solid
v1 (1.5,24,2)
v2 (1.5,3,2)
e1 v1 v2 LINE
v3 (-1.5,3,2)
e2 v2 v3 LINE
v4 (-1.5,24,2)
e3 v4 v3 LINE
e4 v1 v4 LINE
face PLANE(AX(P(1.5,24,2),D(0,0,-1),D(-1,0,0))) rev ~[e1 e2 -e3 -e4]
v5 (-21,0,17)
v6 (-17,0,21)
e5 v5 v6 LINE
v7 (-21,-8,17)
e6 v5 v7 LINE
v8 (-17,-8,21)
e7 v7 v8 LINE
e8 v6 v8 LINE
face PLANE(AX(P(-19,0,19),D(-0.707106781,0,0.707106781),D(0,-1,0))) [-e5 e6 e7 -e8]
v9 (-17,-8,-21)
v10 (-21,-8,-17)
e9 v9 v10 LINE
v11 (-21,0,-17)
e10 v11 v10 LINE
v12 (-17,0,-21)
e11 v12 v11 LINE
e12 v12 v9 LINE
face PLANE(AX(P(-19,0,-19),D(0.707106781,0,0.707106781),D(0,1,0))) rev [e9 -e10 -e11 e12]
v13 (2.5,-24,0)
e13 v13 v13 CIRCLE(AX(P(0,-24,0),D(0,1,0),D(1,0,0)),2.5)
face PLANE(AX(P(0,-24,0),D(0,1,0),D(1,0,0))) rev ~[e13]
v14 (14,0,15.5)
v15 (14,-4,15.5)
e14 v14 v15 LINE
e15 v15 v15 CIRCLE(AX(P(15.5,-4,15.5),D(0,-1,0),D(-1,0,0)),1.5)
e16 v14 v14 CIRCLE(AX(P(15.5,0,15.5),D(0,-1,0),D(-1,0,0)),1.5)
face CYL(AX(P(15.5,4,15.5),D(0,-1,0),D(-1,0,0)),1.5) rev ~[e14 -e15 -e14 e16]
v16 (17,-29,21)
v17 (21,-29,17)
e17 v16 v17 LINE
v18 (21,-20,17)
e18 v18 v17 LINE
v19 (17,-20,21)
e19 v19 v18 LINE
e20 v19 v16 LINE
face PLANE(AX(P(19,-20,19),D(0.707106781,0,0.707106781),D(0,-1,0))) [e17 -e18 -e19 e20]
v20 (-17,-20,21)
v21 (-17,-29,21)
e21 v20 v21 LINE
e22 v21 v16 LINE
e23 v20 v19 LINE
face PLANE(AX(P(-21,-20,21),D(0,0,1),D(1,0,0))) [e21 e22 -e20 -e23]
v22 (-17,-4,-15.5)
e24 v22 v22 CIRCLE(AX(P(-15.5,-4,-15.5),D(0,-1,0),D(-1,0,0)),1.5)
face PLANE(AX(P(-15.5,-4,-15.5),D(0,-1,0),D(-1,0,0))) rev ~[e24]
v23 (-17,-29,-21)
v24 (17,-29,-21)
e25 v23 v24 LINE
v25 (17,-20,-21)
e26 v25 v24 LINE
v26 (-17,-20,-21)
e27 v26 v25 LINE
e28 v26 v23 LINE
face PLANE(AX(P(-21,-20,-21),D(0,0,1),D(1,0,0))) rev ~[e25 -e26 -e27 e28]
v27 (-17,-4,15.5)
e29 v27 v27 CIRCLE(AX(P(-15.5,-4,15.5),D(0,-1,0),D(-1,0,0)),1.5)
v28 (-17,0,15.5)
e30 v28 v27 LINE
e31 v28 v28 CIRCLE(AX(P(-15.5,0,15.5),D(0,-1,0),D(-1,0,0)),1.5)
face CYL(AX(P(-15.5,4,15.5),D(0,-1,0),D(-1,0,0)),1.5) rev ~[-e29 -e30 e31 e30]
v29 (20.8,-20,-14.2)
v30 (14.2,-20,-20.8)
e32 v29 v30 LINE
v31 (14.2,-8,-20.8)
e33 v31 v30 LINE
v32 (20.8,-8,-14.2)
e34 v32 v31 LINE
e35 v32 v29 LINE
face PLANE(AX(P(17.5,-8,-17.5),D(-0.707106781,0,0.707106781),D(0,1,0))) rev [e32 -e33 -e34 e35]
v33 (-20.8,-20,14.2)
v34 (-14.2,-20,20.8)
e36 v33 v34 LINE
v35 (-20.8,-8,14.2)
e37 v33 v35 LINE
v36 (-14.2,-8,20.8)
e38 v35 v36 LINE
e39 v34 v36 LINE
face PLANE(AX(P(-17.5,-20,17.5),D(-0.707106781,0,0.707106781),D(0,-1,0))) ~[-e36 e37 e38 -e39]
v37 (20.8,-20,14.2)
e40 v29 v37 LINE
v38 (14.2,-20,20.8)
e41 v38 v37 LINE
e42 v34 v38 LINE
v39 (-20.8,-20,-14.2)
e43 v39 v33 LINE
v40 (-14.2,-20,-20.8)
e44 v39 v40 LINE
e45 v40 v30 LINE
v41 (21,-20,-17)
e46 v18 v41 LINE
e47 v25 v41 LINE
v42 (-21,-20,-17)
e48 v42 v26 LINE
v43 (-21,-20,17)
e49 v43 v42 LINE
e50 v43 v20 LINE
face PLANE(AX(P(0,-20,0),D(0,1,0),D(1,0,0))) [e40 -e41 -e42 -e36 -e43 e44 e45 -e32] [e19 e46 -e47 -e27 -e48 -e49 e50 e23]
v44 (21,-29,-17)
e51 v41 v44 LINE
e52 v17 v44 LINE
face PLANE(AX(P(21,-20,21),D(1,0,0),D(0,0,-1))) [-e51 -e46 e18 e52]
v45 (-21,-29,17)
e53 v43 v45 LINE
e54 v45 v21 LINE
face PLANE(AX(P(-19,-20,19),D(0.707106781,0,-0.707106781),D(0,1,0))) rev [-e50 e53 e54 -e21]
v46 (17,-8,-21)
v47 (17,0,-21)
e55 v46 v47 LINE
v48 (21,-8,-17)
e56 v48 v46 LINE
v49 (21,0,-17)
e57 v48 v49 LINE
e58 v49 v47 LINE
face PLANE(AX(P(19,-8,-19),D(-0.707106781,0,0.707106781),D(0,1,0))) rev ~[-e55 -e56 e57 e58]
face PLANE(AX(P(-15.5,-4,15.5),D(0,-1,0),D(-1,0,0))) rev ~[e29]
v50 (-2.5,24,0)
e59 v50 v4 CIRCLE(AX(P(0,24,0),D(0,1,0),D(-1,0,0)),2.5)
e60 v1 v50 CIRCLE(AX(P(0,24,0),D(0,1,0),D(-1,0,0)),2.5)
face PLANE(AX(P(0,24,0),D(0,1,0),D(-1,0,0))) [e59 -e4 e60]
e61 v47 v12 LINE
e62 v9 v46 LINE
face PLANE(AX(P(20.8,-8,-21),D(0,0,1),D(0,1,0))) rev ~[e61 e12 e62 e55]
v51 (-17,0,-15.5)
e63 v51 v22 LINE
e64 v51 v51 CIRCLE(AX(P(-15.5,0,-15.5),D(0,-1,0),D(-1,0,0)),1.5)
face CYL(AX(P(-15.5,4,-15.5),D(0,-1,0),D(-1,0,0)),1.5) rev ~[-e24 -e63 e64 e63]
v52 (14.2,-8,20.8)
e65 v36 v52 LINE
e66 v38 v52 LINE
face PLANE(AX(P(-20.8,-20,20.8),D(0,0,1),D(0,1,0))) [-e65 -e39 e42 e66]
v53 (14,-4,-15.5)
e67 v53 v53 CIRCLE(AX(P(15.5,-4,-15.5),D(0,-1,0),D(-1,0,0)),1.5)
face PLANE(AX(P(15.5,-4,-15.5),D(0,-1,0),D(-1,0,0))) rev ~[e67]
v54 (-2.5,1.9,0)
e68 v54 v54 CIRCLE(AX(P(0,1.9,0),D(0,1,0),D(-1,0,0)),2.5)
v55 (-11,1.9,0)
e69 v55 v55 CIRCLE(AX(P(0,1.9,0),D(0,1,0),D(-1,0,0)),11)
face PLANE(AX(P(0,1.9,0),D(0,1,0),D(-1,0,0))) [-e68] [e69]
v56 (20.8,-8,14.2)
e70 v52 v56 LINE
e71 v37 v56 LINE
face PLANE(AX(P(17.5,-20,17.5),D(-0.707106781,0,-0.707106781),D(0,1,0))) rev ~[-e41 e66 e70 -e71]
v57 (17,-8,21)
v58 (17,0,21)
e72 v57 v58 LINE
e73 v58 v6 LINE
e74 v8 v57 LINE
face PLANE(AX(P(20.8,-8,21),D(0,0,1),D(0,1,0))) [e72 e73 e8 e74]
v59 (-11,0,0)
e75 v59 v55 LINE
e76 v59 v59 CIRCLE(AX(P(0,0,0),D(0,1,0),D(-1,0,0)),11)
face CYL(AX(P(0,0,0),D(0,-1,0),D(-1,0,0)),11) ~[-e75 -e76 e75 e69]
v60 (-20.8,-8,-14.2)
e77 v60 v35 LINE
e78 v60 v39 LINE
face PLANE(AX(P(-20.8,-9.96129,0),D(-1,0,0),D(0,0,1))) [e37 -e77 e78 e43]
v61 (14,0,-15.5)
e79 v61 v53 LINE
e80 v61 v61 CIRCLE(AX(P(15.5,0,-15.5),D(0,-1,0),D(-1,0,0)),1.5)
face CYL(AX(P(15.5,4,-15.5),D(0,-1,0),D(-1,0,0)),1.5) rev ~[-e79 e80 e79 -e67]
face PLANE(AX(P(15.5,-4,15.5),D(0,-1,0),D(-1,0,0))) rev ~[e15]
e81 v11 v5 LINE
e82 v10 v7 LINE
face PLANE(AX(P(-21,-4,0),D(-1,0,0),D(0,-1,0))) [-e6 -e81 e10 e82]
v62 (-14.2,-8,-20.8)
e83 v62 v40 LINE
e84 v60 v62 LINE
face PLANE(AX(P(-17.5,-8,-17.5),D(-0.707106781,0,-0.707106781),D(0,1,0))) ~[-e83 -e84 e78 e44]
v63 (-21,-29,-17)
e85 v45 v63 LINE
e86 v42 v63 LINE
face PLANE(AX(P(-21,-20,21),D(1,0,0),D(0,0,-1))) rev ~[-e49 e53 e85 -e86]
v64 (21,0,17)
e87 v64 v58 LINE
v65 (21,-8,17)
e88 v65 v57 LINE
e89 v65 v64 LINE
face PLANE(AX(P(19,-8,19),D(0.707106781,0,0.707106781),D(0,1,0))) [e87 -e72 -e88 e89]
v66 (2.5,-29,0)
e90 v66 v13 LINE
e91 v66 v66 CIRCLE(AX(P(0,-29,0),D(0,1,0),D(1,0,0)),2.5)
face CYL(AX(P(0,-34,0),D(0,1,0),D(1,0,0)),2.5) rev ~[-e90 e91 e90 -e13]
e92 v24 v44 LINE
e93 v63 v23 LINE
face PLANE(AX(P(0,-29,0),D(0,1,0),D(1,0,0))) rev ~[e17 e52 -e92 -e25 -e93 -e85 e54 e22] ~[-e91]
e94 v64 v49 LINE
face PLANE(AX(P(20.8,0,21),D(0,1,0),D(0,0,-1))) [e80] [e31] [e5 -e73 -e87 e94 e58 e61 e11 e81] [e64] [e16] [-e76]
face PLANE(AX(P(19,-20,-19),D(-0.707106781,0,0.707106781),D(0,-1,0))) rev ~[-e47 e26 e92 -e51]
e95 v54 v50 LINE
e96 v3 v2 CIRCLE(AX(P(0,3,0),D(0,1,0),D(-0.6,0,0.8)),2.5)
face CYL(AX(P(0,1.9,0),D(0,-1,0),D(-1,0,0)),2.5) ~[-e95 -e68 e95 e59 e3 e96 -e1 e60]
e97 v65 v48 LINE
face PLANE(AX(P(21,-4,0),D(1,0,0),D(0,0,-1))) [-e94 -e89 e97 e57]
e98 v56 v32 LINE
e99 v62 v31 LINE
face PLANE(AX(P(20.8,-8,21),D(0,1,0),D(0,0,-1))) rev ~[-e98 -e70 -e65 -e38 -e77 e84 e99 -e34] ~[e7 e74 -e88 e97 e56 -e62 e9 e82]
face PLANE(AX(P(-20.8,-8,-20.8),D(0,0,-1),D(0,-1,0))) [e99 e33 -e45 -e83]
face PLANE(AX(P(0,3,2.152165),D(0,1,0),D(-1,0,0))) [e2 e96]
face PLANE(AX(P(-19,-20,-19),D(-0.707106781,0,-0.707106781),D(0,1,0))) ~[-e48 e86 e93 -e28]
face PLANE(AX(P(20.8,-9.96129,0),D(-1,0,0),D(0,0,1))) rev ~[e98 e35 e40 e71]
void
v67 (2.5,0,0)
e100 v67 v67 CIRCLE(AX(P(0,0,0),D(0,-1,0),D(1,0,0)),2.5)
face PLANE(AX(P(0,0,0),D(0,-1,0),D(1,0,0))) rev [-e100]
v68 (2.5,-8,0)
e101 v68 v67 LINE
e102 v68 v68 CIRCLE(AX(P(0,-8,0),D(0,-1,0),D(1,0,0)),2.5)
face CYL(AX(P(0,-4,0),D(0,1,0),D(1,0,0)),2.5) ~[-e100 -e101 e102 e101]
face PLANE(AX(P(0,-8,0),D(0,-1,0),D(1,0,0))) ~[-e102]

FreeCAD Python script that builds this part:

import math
import FreeCAD as App
import Part
import Sketcher


def edges_at(feature, points):
    """Names of the edges that pass closest to the given points."""
    edges = feature.Shape.Edges
    near = lambda p: min(range(len(edges)), key=lambda i: edges[i].distToShape(Part.Vertex(*p))[0])
    return sorted({f"Edge{near(p) + 1}" for p in points})


def add_polygon(sketch, points):
    """Adds a closed chain of lines whose ends are joined by coincident constraints."""
    first, n = sketch.GeometryCount, len(points)
    for a, b in zip(points, points[1:] + points[:1]):
        sketch.addGeometry(Part.LineSegment(App.Vector(*a, 0), App.Vector(*b, 0)), False)
    for i in range(n):
        sketch.addConstraint(Sketcher.Constraint("Coincident", first + i, 2, first + (i + 1) % n, 1))

doc = App.newDocument("Part")
body = doc.addObject("PartDesign::Body", "Body")

# Sketch on YZ plane
sketch1 = doc.addObject("Sketcher::SketchObject", "Sketch")
body.addObject(sketch1)
sketch1.AttachmentSupport = (doc.YZ_Plane, [""])
sketch1.MapMode = "FlatFace"
sketch1.AttachmentOffset = App.Placement(App.Vector(0, 0, -21), App.Rotation())
add_polygon(sketch1, [(0, 21), (0, -21), (-8, -21), (-8, 21)])  # lines 0-3
sketch1.addConstraint([
    Sketcher.Constraint("Vertical", 0),
    Sketcher.Constraint("Horizontal", 1),
    Sketcher.Constraint("Vertical", 2),
    Sketcher.Constraint("Horizontal", 3),
    Sketcher.Constraint("Symmetric", 0, 2, 3, 2, -1, 1),
    Sketcher.Constraint("DistanceX", 1, 2, 1, 1, 8.0),
    Sketcher.Constraint("DistanceY", 0, 2, 0, 1, 42.0),
])
pad1 = doc.addObject("PartDesign::Pad", "Pad")
body.addObject(pad1)
pad1.Profile = sketch1
pad1.Length = 0.2

# Sketch on YZ plane
sketch2 = doc.addObject("Sketcher::SketchObject", "Sketch001")
body.addObject(sketch2)
sketch2.AttachmentSupport = (doc.YZ_Plane, [""])
sketch2.MapMode = "FlatFace"
sketch2.AttachmentOffset = App.Placement(App.Vector(0, 0, -20.8), App.Rotation())
add_polygon(sketch2, [(-20, -20.8), (-8, -20.8), (-8, -21), (0, -21), (0, 21), (-8, 21), (-8, 20.8), (-20, 20.8)])  # lines 0-7
sketch2.addConstraint([
    Sketcher.Constraint("Horizontal", 0),
    Sketcher.Constraint("Vertical", 1),
    Sketcher.Constraint("Horizontal", 2),
    Sketcher.Constraint("Vertical", 3),
    Sketcher.Constraint("Horizontal", 4),
    Sketcher.Constraint("Vertical", 5),
    Sketcher.Constraint("Horizontal", 6),
    Sketcher.Constraint("Vertical", 7),
    Sketcher.Constraint("Symmetric", 2, 2, 3, 2, -1, 1),
    Sketcher.Constraint("Symmetric", 0, 2, 5, 2, -1),
    Sketcher.Constraint("DistanceX", 0, 1, 0, 2, 12.0),
    Sketcher.Constraint("DistanceX", 2, 1, 2, 2, 8.0),
    Sketcher.Constraint("DistanceY", 3, 1, 3, 2, 42.0),
    Sketcher.Constraint("DistanceY", 1, 2, 1, 1, 0.2),
])
pad2 = doc.addObject("PartDesign::Pad", "Pad001")
body.addObject(pad2)
pad2.Profile = sketch2
pad2.Length = 41.6

# Sketch on YZ plane
sketch3 = doc.addObject("Sketcher::SketchObject", "Sketch002")
body.addObject(sketch3)
sketch3.AttachmentSupport = (doc.YZ_Plane, [""])
sketch3.MapMode = "FlatFace"
sketch3.AttachmentOffset = App.Placement(App.Vector(0, 0, 20.8), App.Rotation())
add_polygon(sketch3, [(0, 21), (-8, 21), (-8, -21), (0, -21)])  # lines 0-3
sketch3.addConstraint([
    Sketcher.Constraint("Horizontal", 0),
    Sketcher.Constraint("Vertical", 1),
    Sketcher.Constraint("Horizontal", 2),
    Sketcher.Constraint("Vertical", 3),
    Sketcher.Constraint("Symmetric", 2, 2, 3, 2, -1, 1),
    Sketcher.Constraint("DistanceX", 0, 2, 0, 1, 8.0),
    Sketcher.Constraint("DistanceY", 1, 2, 1, 1, 42.0),
])
pad3 = doc.addObject("PartDesign::Pad", "Pad002")
body.addObject(pad3)
pad3.Profile = sketch3
pad3.Length = 0.2

# Sketch on XZ plane
sketch4 = doc.addObject("Sketcher::SketchObject", "Sketch003")
body.addObject(sketch4)
sketch4.AttachmentSupport = (doc.XZ_Plane, [""])
sketch4.MapMode = "FlatFace"
sketch4.AttachmentOffset = App.Placement(App.Vector(0, 0, 20), App.Rotation())
add_polygon(sketch4, [(-21, -21), (-21, 21), (21, 21), (21, -21)])  # lines 0-3
sketch4.addConstraint([
    Sketcher.Constraint("Vertical", 0),
    Sketcher.Constraint("Horizontal", 1),
    Sketcher.Constraint("Vertical", 2),
    Sketcher.Constraint("Horizontal", 3),
    Sketcher.Constraint("Symmetric", 0, 2, 2, 2, -1, 1),
    Sketcher.Constraint("Equal", 3, 0),
    Sketcher.Constraint("DistanceX", 1, 1, 1, 2, 42.0),
])
pad4 = doc.addObject("PartDesign::Pad", "Pad003")
body.addObject(pad4)
pad4.Profile = sketch4
pad4.Length = 9

# Sketch on XZ plane
sketch5 = doc.addObject("Sketcher::SketchObject", "Sketch004")
body.addObject(sketch5)
sketch5.AttachmentSupport = (doc.XZ_Plane, [""])
sketch5.MapMode = "FlatFace"
sketch5.addGeometry(Part.Circle(App.Vector(0, 0, 0), App.Vector(0, 0, 1), 11), False)
sketch5.addConstraint([
    Sketcher.Constraint("Coincident", 0, 3, -1, 1),
    Sketcher.Constraint("Diameter", 0, 22.0),
])
pad5 = doc.addObject("PartDesign::Pad", "Pad004")
body.addObject(pad5)
pad5.Profile = sketch5
pad5.Length = 1.9
pad5.Reversed = True

# Sketch on XZ plane
sketch6 = doc.addObject("Sketcher::SketchObject", "Sketch005")
body.addObject(sketch6)
sketch6.AttachmentSupport = (doc.XZ_Plane, [""])
sketch6.MapMode = "FlatFace"
sketch6.AttachmentOffset = App.Placement(App.Vector(0, 0, -1.9), App.Rotation())
sketch6.addGeometry(Part.Circle(App.Vector(0, 0, 0), App.Vector(0, 0, 1), 2.5), False)
sketch6.addConstraint([
    Sketcher.Constraint("Coincident", 0, 3, -1, 1),
    Sketcher.Constraint("Diameter", 0, 5.0),
])
pad6 = doc.addObject("PartDesign::Pad", "Pad005")
body.addObject(pad6)
pad6.Profile = sketch6
pad6.Length = 22.1
pad6.Reversed = True

# Sketch on XZ plane
sketch7 = doc.addObject("Sketcher::SketchObject", "Sketch006")
body.addObject(sketch7)
sketch7.AttachmentSupport = (doc.XZ_Plane, [""])
sketch7.MapMode = "FlatFace"
sketch7.AttachmentOffset = App.Placement(App.Vector(0, 0, -24), App.Rotation())
sketch7.addGeometry([
    Part.LineSegment(App.Vector(1.5, 2, 0), App.Vector(-1.5, 2, 0)),
    Part.ArcOfCircle(Part.Circle(App.Vector(0, 0, 0), App.Vector(0, 0, 1), 2.5), math.radians(53), math.radians(127)),
], False)
sketch7.addConstraint([
    Sketcher.Constraint("Coincident", 0, 1, 1, 1),
    Sketcher.Constraint("Coincident", 1, 2, 0, 2),
    Sketcher.Constraint("Horizontal", 0),
    Sketcher.Constraint("Coincident", 1, 3, -1, 1),
    Sketcher.Constraint("Radius", 1, 2.5),
    Sketcher.Constraint("DistanceX", 0, 2, 0, 1, 3.0),
])
pocket1 = doc.addObject("PartDesign::Pocket", "Pocket")
body.addObject(pocket1)
pocket1.Profile = sketch7
pocket1.Length = 21
pocket1.Reversed = True

# Sketch on XY plane
sketch8 = doc.addObject("Sketcher::SketchObject", "Sketch007")
body.addObject(sketch8)
sketch8.AttachmentSupport = (doc.XY_Plane, [""])
sketch8.MapMode = "FlatFace"
add_polygon(sketch8, [(0, 0), (0, -8), (2.5, -8), (2.5, 0)])  # lines 0-3
sketch8.addConstraint([
    Sketcher.Constraint("Vertical", 0),
    Sketcher.Constraint("Horizontal", 1),
    Sketcher.Constraint("Vertical", 2),
    Sketcher.Constraint("Horizontal", 3),
    Sketcher.Constraint("Coincident", 3, 2, -1, 1),
    Sketcher.Constraint("DistanceY", 0, 2, 0, 1, 8.0),
    Sketcher.Constraint("DistanceX", 1, 1, 1, 2, 2.5),
])
groove = doc.addObject("PartDesign::Groove", "Groove")
body.addObject(groove)
groove.Profile = sketch8
groove.ReferenceAxis = (sketch8, ["V_Axis"])
groove.Angle = 360

# Sketch on XZ plane
sketch9 = doc.addObject("Sketcher::SketchObject", "Sketch008")
body.addObject(sketch9)
sketch9.AttachmentSupport = (doc.XZ_Plane, [""])
sketch9.MapMode = "FlatFace"
sketch9.AttachmentOffset = App.Placement(App.Vector(0, 0, 29), App.Rotation())
sketch9.addGeometry(Part.Circle(App.Vector(0, 0, 0), App.Vector(0, 0, 1), 2.5), False)
sketch9.addConstraint([
    Sketcher.Constraint("Coincident", 0, 3, -1, 1),
    Sketcher.Constraint("Diameter", 0, 5.0),
])
doc.recompute()
hole = doc.addObject("PartDesign::Hole", "Hole")
body.addObject(hole)
hole.Profile = sketch9
hole.ThreadType = "None"
hole.Diameter = 5
hole.DepthType = "Dimension"
hole.Depth = 5
hole.DrillPoint = "Flat"

# Sketch on XZ plane
sketch10 = doc.addObject("Sketcher::SketchObject", "Sketch009")
body.addObject(sketch10)
sketch10.AttachmentSupport = (doc.XZ_Plane, [""])
sketch10.MapMode = "FlatFace"
sketch10.addGeometry([
    Part.Circle(App.Vector(-15.5, -15.5, 0), App.Vector(0, 0, 1), 1.5),
    Part.Circle(App.Vector(15.5, 15.5, 0), App.Vector(0, 0, 1), 1.5),
    Part.Circle(App.Vector(15.5, -15.5, 0), App.Vector(0, 0, 1), 1.5),
    Part.Circle(App.Vector(-15.5, 15.5, 0), App.Vector(0, 0, 1), 1.5),
], False)
sketch10.addConstraint([
    Sketcher.Constraint("Equal", 0, 1),
    Sketcher.Constraint("Equal", 1, 2),
    Sketcher.Constraint("Equal", 2, 3),
    Sketcher.Constraint("Symmetric", 0, 3, 1, 3, -1, 1),
    Sketcher.Constraint("Symmetric", 2, 3, 3, 3, -1, 1),
    Sketcher.Constraint("Symmetric", 0, 3, 2, 3, -2),
    Sketcher.Constraint("Diameter", 0, 3.0),
    Sketcher.Constraint("DistanceX", 0, 3, 1, 3, 31.0),
    Sketcher.Constraint("DistanceY", 0, 3, 1, 3, 31.0),
])
doc.recompute()
hole2 = doc.addObject("PartDesign::Hole", "Hole001")
body.addObject(hole2)
hole2.Profile = sketch10
hole2.ThreadType = "None"
hole2.Diameter = 3
hole2.DepthType = "Dimension"
hole2.Depth = 4
hole2.DrillPoint = "Flat"
hole2.Reversed = True
doc.recompute()

chamfer = doc.addObject("PartDesign::Chamfer", "Chamfer")
body.addObject(chamfer)
chamfer.Base = (hole2, edges_at(hole2, [
    (-20.8, -14, 20.8),
    (-20.8, -14, -20.8),
    (20.8, -14, 20.8),
    (20.8, -14, -20.8),
]))
chamfer.Size = 6.6
doc.recompute()

chamfer2 = doc.addObject("PartDesign::Chamfer", "Chamfer001")
body.addObject(chamfer2)
chamfer2.Base = (chamfer, edges_at(chamfer, [
    (21, -4, -21),
    (21, -4, 21),
    (-21, -24.5, 21),
    (-21, -24.5, -21),
    (21, -24.5, -21),
    (21, -24.5, 21),
    (-21, -4, 21),
    (-21, -4, -21),
]))
chamfer2.Size = 4

doc.recompute()
